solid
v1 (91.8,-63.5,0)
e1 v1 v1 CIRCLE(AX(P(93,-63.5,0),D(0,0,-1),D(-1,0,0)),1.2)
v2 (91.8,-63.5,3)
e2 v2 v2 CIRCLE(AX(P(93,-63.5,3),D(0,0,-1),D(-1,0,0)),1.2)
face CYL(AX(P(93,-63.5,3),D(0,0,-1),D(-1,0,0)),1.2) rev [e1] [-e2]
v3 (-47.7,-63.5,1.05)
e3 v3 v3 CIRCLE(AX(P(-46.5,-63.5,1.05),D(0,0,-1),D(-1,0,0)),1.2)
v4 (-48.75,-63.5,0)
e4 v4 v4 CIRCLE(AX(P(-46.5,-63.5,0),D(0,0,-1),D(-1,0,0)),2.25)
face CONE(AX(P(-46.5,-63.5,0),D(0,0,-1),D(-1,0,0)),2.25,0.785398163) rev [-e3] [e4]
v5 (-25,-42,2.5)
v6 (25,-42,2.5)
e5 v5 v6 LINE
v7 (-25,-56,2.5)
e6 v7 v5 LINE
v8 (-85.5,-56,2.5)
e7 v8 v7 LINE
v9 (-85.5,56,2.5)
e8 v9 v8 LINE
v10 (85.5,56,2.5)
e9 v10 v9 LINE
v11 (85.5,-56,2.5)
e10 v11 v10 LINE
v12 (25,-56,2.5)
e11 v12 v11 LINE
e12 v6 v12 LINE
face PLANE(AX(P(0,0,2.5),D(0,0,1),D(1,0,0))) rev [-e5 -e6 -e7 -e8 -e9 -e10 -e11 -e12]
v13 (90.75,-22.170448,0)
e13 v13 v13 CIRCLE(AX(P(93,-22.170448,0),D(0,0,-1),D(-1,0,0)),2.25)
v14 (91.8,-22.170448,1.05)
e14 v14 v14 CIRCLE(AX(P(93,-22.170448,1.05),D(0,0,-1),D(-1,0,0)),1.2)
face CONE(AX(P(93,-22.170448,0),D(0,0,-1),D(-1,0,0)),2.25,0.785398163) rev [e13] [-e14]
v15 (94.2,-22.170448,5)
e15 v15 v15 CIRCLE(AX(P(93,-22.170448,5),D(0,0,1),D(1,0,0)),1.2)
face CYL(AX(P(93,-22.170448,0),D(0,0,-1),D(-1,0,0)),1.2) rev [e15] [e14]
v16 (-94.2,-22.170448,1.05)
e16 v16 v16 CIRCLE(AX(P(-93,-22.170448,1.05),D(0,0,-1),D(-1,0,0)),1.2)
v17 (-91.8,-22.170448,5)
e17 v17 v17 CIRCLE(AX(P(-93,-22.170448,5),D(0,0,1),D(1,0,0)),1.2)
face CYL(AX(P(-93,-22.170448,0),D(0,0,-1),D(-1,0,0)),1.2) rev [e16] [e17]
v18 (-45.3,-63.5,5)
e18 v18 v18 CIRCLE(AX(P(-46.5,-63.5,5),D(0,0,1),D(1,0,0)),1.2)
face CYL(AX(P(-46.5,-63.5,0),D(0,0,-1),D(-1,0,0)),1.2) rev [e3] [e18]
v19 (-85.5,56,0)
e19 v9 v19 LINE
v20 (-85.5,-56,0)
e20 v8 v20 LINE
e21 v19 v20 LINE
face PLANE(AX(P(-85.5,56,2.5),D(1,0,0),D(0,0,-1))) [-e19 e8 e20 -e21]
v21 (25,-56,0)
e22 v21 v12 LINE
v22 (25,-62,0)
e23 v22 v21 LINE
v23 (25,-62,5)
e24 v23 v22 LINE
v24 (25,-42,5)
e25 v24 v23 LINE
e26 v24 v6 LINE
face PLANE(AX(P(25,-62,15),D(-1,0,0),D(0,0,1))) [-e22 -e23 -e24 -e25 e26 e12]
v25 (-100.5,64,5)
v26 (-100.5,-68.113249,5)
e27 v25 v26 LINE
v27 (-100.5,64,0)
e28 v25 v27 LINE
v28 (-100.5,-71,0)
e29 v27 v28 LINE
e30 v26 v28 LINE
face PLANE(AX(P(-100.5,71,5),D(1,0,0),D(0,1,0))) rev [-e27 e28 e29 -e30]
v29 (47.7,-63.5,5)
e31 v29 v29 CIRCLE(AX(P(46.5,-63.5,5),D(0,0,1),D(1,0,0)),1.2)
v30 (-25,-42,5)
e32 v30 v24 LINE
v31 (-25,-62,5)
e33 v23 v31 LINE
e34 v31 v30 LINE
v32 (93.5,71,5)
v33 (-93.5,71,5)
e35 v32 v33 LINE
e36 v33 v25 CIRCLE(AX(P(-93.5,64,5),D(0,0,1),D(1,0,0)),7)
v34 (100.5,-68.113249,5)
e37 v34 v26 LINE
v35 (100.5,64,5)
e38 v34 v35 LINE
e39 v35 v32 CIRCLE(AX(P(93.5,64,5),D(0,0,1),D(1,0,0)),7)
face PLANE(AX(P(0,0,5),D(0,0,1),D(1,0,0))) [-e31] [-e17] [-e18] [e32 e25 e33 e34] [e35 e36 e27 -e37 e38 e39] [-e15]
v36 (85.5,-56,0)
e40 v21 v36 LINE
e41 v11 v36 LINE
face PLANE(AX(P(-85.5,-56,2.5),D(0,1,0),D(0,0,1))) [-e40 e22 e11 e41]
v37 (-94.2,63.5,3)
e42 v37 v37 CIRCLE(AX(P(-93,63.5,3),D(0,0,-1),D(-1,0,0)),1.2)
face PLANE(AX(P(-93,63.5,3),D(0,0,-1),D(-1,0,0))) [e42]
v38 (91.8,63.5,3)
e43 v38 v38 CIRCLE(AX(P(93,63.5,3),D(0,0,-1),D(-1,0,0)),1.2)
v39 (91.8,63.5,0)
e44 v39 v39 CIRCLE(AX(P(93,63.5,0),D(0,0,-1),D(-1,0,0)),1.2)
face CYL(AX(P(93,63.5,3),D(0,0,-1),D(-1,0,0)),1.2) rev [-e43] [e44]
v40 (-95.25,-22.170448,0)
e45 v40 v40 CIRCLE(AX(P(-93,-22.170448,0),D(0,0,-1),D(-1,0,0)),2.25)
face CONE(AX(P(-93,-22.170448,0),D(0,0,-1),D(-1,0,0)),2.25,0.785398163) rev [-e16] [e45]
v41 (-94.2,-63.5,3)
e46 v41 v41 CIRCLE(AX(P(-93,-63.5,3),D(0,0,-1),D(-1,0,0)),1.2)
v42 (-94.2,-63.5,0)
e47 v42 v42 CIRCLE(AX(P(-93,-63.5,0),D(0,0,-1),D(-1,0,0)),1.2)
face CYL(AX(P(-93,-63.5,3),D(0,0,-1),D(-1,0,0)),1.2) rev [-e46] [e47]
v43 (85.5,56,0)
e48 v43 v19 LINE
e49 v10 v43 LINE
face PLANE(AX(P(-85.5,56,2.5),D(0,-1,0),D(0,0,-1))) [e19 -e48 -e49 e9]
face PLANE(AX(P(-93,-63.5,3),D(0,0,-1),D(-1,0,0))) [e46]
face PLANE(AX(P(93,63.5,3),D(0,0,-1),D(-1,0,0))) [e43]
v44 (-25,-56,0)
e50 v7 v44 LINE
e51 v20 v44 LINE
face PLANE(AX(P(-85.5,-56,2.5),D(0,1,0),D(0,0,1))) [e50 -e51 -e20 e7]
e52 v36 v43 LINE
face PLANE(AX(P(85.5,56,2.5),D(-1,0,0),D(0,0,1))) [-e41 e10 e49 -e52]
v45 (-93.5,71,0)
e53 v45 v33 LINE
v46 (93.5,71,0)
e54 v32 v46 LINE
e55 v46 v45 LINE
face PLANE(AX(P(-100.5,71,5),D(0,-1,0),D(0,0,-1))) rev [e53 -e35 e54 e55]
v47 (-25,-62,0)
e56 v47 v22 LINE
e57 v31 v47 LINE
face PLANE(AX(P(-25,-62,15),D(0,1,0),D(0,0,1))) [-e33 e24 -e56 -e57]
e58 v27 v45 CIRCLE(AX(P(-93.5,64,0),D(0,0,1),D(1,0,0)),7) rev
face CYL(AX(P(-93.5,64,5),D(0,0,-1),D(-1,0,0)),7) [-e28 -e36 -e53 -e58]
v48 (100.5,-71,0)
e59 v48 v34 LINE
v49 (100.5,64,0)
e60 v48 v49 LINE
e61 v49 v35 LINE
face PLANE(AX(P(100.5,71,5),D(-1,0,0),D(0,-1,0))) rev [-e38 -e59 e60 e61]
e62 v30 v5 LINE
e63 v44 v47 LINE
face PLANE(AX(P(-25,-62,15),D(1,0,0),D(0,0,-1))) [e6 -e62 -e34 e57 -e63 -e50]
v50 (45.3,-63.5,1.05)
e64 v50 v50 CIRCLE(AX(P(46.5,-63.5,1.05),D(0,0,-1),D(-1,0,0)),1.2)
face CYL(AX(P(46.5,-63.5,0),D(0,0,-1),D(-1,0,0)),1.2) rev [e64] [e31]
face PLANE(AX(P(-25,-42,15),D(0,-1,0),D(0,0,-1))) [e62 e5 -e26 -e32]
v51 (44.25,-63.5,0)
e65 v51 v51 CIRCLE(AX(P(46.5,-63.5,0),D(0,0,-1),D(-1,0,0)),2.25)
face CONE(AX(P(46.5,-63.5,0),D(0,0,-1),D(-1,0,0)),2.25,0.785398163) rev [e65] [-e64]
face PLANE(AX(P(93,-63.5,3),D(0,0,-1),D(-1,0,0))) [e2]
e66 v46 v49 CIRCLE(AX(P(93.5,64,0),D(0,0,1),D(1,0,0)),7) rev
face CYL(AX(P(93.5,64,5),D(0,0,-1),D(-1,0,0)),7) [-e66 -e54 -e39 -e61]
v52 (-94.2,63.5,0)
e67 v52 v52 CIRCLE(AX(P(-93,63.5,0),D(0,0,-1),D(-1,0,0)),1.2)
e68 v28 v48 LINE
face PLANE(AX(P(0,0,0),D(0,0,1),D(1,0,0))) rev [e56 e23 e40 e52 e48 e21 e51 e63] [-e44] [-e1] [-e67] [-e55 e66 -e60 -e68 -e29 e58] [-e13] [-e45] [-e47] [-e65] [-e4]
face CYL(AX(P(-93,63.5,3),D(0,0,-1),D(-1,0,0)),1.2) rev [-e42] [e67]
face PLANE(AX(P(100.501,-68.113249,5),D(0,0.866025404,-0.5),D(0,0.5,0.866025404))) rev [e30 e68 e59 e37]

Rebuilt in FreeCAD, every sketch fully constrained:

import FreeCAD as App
import Part
import Sketcher
Q = App.Units.Quantity


def edges_at(feature, points):
    """Names of the edges that pass closest to the given points."""
    edges = feature.Shape.Edges
    near = lambda p: min(range(len(edges)), key=lambda i: edges[i].distToShape(Part.Vertex(*p))[0])
    return sorted({f"Edge{near(p) + 1}" for p in points})


def add_polygon(sketch, points):
    """Adds a closed chain of lines whose ends are joined by coincident constraints."""
    first, n = sketch.GeometryCount, len(points)
    for a, b in zip(points, points[1:] + points[:1]):
        sketch.addGeometry(Part.LineSegment(App.Vector(*a, 0), App.Vector(*b, 0)), False)
    for i in range(n):
        sketch.addConstraint(Sketcher.Constraint("Coincident", first + i, 2, first + (i + 1) % n, 1))

doc = App.newDocument("Part")
params = doc.addObject("Spreadsheet::Sheet", "Params")
for row, (alias, value) in enumerate([
    ("sketch1_width", "201 mm"),
    ("sketch1_height", "142 mm"),
    ("pad1_length", "5 mm"),
    ("sketch2_width", "171 mm"),
    ("sketch2_height", "112 mm"),
    ("pocket1_length", "2.5 mm"),
    ("sketch3_width", "50 mm"),
    ("sketch3_height", "20 mm"),
    ("pocket2_length", "15 mm"),
    ("sketch4_diameter", "2.4 mm"),
    ("pocket3_length", "3 mm"),
    ("sketch5_height", "5 mm"),
    ("sketch6_diameter", "2.4 mm"),
    ("hole_diameter", "2.4 mm"),
    ("hole_csink_diameter", "4.5 mm"),
    ("fillet_radius", "7 mm"),
], start=1):
    params.set(f"A{row}", alias)
    params.set(f"B{row}", "=" + value)
    params.setAlias(f"B{row}", alias)

body = doc.addObject("PartDesign::Body", "Body")

sketch1 = body.newObject("Sketcher::SketchObject", "Sketch")
sketch1.AttachmentSupport = (doc.getObject("XY_Plane"), [""])
sketch1.MapMode = "FlatFace"
add_polygon(sketch1, [(-100, 71), (-100, -71), (100, -71), (100, 71)])
sketch1.addConstraint([
    Sketcher.Constraint("Vertical", 0),
    Sketcher.Constraint("Horizontal", 1),
    Sketcher.Constraint("Vertical", 2),
    Sketcher.Constraint("Horizontal", 3),
    Sketcher.Constraint("Symmetric", 0, 2, 2, 2, -1, 1),
    Sketcher.Constraint("DistanceX", 1, 1, 1, 2, 201.0),
    Sketcher.Constraint("DistanceY", 0, 2, 0, 1, 142.0),
])
sketch1.setExpression("Constraints[9]", "Params.sketch1_width")
sketch1.setExpression("Constraints[10]", "Params.sketch1_height")
pad1 = body.newObject("PartDesign::Pad", "Pad")
pad1.Profile = sketch1
pad1.setExpression("Length", "Params.pad1_length")

sketch2 = body.newObject("Sketcher::SketchObject", "Sketch001")
sketch2.AttachmentSupport = (doc.getObject("XY_Plane"), [""])
sketch2.MapMode = "FlatFace"
add_polygon(sketch2, [(-86, 56), (-86, -56), (86, -56), (86, 56)])
sketch2.addConstraint([
    Sketcher.Constraint("Vertical", 0),
    Sketcher.Constraint("Horizontal", 1),
    Sketcher.Constraint("Vertical", 2),
    Sketcher.Constraint("Horizontal", 3),
    Sketcher.Constraint("Symmetric", 0, 2, 2, 2, -1, 1),
    Sketcher.Constraint("DistanceX", 1, 1, 1, 2, 171.0),
    Sketcher.Constraint("DistanceY", 0, 2, 0, 1, 112.0),
])
sketch2.setExpression("Constraints[9]", "Params.sketch2_width")
sketch2.setExpression("Constraints[10]", "Params.sketch2_height")
pocket1 = body.newObject("PartDesign::Pocket", "Pocket")
pocket1.Profile = sketch2
pocket1.setExpression("Length", "Params.pocket1_length")
pocket1.Reversed = True

sketch3 = body.newObject("Sketcher::SketchObject", "Sketch002")
sketch3.AttachmentSupport = (doc.getObject("XY_Plane"), [""])
sketch3.MapMode = "FlatFace"
add_polygon(sketch3, [(-25, -42), (-25, -62), (25, -62), (25, -42)])
sketch3.addConstraint([
    Sketcher.Constraint("Vertical", 0),
    Sketcher.Constraint("Horizontal", 1),
    Sketcher.Constraint("Vertical", 2),
    Sketcher.Constraint("Horizontal", 3),
    Sketcher.Constraint("DistanceX", 1, 1, 1, 2, 50.0),
    Sketcher.Constraint("DistanceY", 0, 2, 0, 1, 20.0),
    Sketcher.Constraint("DistanceX", 0, 2, -1, 1, 25.0),
    Sketcher.Constraint("DistanceY", 0, 2, -1, 1, 62.0),
])
sketch3.setExpression("Constraints[8]", "Params.sketch3_width")
sketch3.setExpression("Constraints[9]", "Params.sketch3_height")
pocket2 = body.newObject("PartDesign::Pocket", "Pocket001")
pocket2.Profile = sketch3
pocket2.setExpression("Length", "Params.pocket2_length")
pocket2.Reversed = True

sketch4 = body.newObject("Sketcher::SketchObject", "Sketch003")
sketch4.AttachmentSupport = (doc.getObject("XY_Plane"), [""])
sketch4.MapMode = "FlatFace"
sketch4.addGeometry([
    Part.Circle(App.Vector(93, 63.5, 0), App.Vector(0, 0, 1), 1.2),
    Part.Circle(App.Vector(-93, 63.5, 0), App.Vector(0, 0, 1), 1.2),
    Part.Circle(App.Vector(-93, -63.5, 0), App.Vector(0, 0, 1), 1.2),
    Part.Circle(App.Vector(93, -63.5, 0), App.Vector(0, 0, 1), 1.2),
], False)
sketch4.addConstraint([
    Sketcher.Constraint("Equal", 0, 1),
    Sketcher.Constraint("Equal", 1, 2),
    Sketcher.Constraint("Equal", 2, 3),
    Sketcher.Constraint("Symmetric", 0, 3, 2, 3, -1, 1),
    Sketcher.Constraint("Symmetric", 1, 3, 3, 3, -1, 1),
    Sketcher.Constraint("Symmetric", 0, 3, 1, 3, -2),
    Sketcher.Constraint("Diameter", 0, 2.4),
    Sketcher.Constraint("DistanceX", -1, 1, 0, 3, 93.0),
    Sketcher.Constraint("DistanceY", 2, 3, 1, 3, 127.0),
])
sketch4.setExpression("Constraints[6]", "Params.sketch4_diameter")
pocket3 = body.newObject("PartDesign::Pocket", "Pocket002")
pocket3.Profile = sketch4
pocket3.setExpression("Length", "Params.pocket3_length")
pocket3.Reversed = True

sketch5 = body.newObject("Sketcher::SketchObject", "Sketch004")
sketch5.AttachmentSupport = (doc.getObject("YZ_Plane"), [""])
sketch5.MapMode = "FlatFace"
sketch5.AttachmentOffset = App.Placement(App.Vector(0, 0, -100.5), App.Rotation())
add_polygon(sketch5, [(-71, 0), (-71, 5), (-68.1, 5)])
sketch5.addConstraint([
    Sketcher.Constraint("Vertical", 0),
    Sketcher.Constraint("Horizontal", 1),
    Sketcher.Constraint("PointOnObject", 2, 2, -1),
    Sketcher.Constraint("DistanceY", 0, 1, 0, 2, 5.0),
    Sketcher.Constraint("Angle", 2, Q("-120 deg")),
    Sketcher.Constraint("DistanceX", 0, 2, -1, 1, 71.0),
])
sketch5.setExpression("Constraints[6]", "Params.sketch5_height")
pocket4 = body.newObject("PartDesign::Pocket", "Pocket003")
pocket4.Profile = sketch5
pocket4.Type = "UpToFirst"
pocket4.Reversed = True

sketch6 = body.newObject("Sketcher::SketchObject", "Sketch005")
sketch6.AttachmentSupport = (doc.getObject("XY_Plane"), [""])
sketch6.MapMode = "FlatFace"
sketch6.addGeometry([
    Part.Circle(App.Vector(93, -22.2, 0), App.Vector(0, 0, 1), 1.2),
    Part.Circle(App.Vector(46.5, -63.5, 0), App.Vector(0, 0, 1), 1.2),
    Part.Circle(App.Vector(-46.5, -63.5, 0), App.Vector(0, 0, 1), 1.2),
    Part.Circle(App.Vector(-93, -22.2, 0), App.Vector(0, 0, 1), 1.2),
], False)
sketch6.addConstraint([
    Sketcher.Constraint("Equal", 0, 1),
    Sketcher.Constraint("Equal", 1, 2),
    Sketcher.Constraint("Equal", 2, 3),
    Sketcher.Constraint("Symmetric", 1, 3, 2, 3, -2),
    Sketcher.Constraint("Symmetric", 0, 3, 3, 3, -2),
    Sketcher.Constraint("Diameter", 0, 2.4),
    Sketcher.Constraint("DistanceX", -1, 1, 0, 3, 93.0),
    Sketcher.Constraint("DistanceX", 2, 3, 1, 3, 93.0),
    Sketcher.Constraint("DistanceY", 1, 3, -1, 1, 63.5),
    Sketcher.Constraint("DistanceY", 0, 3, -1, 1, 22.170448),
])
sketch6.setExpression("Constraints[5]", "Params.sketch6_diameter")
doc.recompute()
hole = body.newObject("PartDesign::Hole", "Hole")
hole.Profile = sketch6
hole.ThreadType = "None"
hole.setExpression("Diameter", "Params.hole_diameter")
hole.DepthType = "ThroughAll"
hole.HoleCutType = "Countersink"
hole.setExpression("HoleCutDiameter", "Params.hole_csink_diameter")
hole.HoleCutCountersinkAngle = 90
hole.Reversed = True
doc.recompute()

fillet = body.newObject("PartDesign::Fillet", "Fillet")
fillet.Base = (hole, edges_at(hole, [(-100.5, 71, 2.5), (100.5, 71, 2.5)]))
fillet.setExpression("Radius", "Params.fillet_radius")

doc.recompute()
